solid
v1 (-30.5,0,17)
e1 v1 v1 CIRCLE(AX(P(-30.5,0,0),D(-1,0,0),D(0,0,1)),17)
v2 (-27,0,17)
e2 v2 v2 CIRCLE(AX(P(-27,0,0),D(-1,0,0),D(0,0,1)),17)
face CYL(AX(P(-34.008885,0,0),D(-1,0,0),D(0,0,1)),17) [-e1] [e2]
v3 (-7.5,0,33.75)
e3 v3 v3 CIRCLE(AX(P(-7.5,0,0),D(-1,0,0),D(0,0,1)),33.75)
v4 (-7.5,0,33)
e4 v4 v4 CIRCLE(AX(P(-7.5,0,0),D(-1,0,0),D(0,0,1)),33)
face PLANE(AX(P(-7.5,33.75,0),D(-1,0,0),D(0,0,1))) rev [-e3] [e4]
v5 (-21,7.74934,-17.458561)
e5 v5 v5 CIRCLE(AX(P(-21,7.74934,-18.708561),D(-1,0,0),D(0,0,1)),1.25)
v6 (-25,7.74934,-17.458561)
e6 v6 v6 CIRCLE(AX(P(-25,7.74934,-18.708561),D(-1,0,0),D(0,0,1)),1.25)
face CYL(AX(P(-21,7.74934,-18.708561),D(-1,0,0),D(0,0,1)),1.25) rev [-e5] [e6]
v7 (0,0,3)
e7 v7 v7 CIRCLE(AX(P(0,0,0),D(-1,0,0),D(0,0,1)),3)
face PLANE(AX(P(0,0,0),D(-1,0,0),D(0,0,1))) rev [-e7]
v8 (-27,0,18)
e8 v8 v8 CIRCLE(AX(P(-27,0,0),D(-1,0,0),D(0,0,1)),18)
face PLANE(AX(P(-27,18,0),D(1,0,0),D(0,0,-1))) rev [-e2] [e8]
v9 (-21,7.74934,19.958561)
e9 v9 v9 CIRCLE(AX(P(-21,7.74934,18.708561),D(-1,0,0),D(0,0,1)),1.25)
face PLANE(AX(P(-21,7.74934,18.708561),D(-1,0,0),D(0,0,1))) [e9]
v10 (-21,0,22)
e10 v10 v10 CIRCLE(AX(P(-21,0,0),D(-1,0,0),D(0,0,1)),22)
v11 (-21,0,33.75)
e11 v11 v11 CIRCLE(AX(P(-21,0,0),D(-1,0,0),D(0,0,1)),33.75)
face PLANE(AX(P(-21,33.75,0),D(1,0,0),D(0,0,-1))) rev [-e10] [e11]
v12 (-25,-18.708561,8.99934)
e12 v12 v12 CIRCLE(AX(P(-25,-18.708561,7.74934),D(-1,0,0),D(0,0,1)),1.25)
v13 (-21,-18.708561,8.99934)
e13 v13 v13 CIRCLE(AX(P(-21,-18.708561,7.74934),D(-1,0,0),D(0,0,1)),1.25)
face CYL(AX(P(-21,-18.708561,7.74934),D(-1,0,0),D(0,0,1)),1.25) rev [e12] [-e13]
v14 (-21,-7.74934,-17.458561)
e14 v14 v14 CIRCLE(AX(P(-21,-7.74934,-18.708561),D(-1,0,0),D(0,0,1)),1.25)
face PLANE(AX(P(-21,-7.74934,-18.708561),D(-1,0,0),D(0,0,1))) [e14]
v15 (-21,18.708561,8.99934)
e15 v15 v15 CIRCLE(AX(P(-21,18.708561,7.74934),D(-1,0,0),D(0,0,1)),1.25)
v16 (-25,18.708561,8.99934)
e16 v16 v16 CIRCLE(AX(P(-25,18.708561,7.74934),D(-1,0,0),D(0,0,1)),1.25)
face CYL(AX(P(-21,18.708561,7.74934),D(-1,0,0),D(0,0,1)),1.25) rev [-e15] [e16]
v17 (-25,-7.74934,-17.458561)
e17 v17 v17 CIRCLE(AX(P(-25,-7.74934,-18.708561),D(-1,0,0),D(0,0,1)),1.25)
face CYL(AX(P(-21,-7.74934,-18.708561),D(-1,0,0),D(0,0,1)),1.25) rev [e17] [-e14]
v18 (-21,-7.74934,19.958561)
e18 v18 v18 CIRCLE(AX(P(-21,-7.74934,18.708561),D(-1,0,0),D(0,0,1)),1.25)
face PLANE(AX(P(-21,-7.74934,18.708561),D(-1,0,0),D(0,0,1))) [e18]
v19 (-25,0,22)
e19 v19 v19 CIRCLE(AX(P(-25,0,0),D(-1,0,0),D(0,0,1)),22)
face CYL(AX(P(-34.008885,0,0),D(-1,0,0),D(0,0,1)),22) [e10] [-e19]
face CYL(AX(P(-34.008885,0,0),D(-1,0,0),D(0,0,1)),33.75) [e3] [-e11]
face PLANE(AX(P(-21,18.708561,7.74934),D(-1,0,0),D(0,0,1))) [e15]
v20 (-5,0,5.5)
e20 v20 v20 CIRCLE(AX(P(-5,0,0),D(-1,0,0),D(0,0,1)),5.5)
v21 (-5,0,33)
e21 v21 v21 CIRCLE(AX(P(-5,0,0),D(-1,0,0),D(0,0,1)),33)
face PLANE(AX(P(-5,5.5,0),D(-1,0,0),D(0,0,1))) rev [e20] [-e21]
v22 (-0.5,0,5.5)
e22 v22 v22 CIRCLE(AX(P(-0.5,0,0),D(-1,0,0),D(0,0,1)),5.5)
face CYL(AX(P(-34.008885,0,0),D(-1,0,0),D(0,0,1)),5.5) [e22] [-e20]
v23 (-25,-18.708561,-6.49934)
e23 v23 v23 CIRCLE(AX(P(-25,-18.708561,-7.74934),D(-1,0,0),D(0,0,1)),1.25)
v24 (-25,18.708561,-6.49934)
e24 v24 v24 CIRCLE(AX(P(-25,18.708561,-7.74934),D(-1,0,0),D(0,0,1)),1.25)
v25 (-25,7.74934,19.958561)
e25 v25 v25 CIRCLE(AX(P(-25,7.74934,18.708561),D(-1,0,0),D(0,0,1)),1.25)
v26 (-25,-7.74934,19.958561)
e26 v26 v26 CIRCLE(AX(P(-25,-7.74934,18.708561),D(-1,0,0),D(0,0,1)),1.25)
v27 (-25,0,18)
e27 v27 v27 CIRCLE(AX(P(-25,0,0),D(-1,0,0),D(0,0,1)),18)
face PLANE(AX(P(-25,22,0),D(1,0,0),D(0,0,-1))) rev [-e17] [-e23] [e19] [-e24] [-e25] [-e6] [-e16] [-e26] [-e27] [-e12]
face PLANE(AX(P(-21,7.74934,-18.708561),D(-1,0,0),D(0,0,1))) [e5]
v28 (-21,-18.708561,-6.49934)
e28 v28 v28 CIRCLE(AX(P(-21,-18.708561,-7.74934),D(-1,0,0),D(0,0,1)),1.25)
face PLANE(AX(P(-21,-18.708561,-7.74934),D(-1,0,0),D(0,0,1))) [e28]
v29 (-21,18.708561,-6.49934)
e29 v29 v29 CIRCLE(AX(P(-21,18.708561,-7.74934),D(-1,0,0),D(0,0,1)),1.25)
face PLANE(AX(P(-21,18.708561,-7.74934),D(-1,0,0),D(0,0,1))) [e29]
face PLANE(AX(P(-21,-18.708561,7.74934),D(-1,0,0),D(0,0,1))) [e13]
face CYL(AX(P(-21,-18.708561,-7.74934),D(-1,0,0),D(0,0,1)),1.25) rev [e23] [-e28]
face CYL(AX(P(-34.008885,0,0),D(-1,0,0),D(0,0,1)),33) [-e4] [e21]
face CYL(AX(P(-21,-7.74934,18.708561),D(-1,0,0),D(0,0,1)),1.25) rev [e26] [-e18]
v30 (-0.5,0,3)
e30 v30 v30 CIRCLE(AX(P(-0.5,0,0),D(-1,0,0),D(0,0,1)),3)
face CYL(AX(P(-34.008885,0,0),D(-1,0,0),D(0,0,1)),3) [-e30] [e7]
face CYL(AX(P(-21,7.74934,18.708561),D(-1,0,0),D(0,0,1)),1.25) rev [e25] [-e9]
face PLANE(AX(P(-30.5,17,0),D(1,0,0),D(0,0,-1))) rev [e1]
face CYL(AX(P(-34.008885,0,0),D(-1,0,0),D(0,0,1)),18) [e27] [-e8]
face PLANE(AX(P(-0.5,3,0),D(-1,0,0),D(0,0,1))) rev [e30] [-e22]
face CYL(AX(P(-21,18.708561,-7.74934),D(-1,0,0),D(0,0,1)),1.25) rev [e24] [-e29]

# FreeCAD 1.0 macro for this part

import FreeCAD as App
import Part
import Sketcher

V = App.Vector

doc = App.newDocument("Part")
body = doc.addObject("PartDesign::Body", "Body")

# Sketch on XY plane
sketch1 = body.newObject("Sketcher::SketchObject", "Sketch")
sketch1.AttachmentSupport = (doc.getObject("XY_Plane"), [""])
sketch1.MapMode = "FlatFace"
sketch1.addGeometry([
    Part.LineSegment(V(0, 0, 0), V(0, 3, 0)),  # 0
    Part.LineSegment(V(0, 3, 0), V(-0.5, 3, 0)),  # 1
    Part.LineSegment(V(-0.5, 3, 0), V(-0.5, 5.5, 0)),  # 2
    Part.LineSegment(V(-0.5, 5.5, 0), V(-5, 5.5, 0)),  # 3
    Part.LineSegment(V(-5, 5.5, 0), V(-5, 33, 0)),  # 4
    Part.LineSegment(V(-5, 33, 0), V(-7.5, 33, 0)),  # 5
    Part.LineSegment(V(-7.5, 33, 0), V(-7.5, 33.8, 0)),  # 6
    Part.LineSegment(V(-7.5, 33.8, 0), V(-21, 33.8, 0)),  # 7
    Part.LineSegment(V(-21, 33.8, 0), V(-21, 22, 0)),  # 8
    Part.LineSegment(V(-21, 22, 0), V(-25, 22, 0)),  # 9
    Part.LineSegment(V(-25, 22, 0), V(-25, 18, 0)),  # 10
    Part.LineSegment(V(-25, 18, 0), V(-27, 18, 0)),  # 11
    Part.LineSegment(V(-27, 18, 0), V(-27, 17, 0)),  # 12
    Part.LineSegment(V(-27, 17, 0), V(-30.5, 17, 0)),  # 13
    Part.LineSegment(V(-30.5, 17, 0), V(-30.5, 0, 0)),  # 14
    Part.LineSegment(V(-30.5, 0, 0), V(0, 0, 0)),  # 15
], False)
sketch1.addConstraint([
    Sketcher.Constraint("Coincident", 0, 2, 1, 1),
    Sketcher.Constraint("Coincident", 1, 2, 2, 1),
    Sketcher.Constraint("Coincident", 2, 2, 3, 1),
    Sketcher.Constraint("Coincident", 3, 2, 4, 1),
    Sketcher.Constraint("Coincident", 4, 2, 5, 1),
    Sketcher.Constraint("Coincident", 5, 2, 6, 1),
    Sketcher.Constraint("Coincident", 6, 2, 7, 1),
    Sketcher.Constraint("Coincident", 7, 2, 8, 1),
    Sketcher.Constraint("Coincident", 8, 2, 9, 1),
    Sketcher.Constraint("Coincident", 9, 2, 10, 1),
    Sketcher.Constraint("Coincident", 10, 2, 11, 1),
    Sketcher.Constraint("Coincident", 11, 2, 12, 1),
    Sketcher.Constraint("Coincident", 12, 2, 13, 1),
    Sketcher.Constraint("Coincident", 13, 2, 14, 1),
    Sketcher.Constraint("Coincident", 14, 2, 15, 1),
    Sketcher.Constraint("Coincident", 15, 2, 0, 1),
    Sketcher.Constraint("Vertical", 0),
    Sketcher.Constraint("Horizontal", 1),
    Sketcher.Constraint("Vertical", 2),
    Sketcher.Constraint("Horizontal", 3),
    Sketcher.Constraint("Vertical", 4),
    Sketcher.Constraint("Horizontal", 5),
    Sketcher.Constraint("Vertical", 6),
    Sketcher.Constraint("Horizontal", 7),
    Sketcher.Constraint("Vertical", 8),
    Sketcher.Constraint("Horizontal", 9),
    Sketcher.Constraint("Vertical", 10),
    Sketcher.Constraint("Horizontal", 11),
    Sketcher.Constraint("Vertical", 12),
    Sketcher.Constraint("Horizontal", 13),
    Sketcher.Constraint("Vertical", 14),
    Sketcher.Constraint("Horizontal", 15),
    Sketcher.Constraint("Coincident", 15, 2, -1, 1),
    Sketcher.Constraint("Equal", 5, 2),
    Sketcher.Constraint("Equal", 9, 10),
    Sketcher.Constraint("DistanceX", 9, 2, 9, 1, 4.0),
    Sketcher.Constraint("DistanceX", 11, 2, 11, 1, 2.0),
    Sketcher.Constraint("DistanceY", 0, 1, 0, 2, 3.0),
    Sketcher.Constraint("DistanceY", 12, 2, 12, 1, 1.0),
    Sketcher.Constraint("DistanceY", 14, 2, 14, 1, 17.0),
    Sketcher.Constraint("DistanceX", 1, 2, 1, 1, 0.5),
    Sketcher.Constraint("DistanceX", 3, 2, 3, 1, 4.5),
    Sketcher.Constraint("DistanceX", 5, 2, 5, 1, 2.5),
    Sketcher.Constraint("DistanceX", 7, 2, 7, 1, 13.5),
    Sketcher.Constraint("DistanceX", 13, 2, 13, 1, 3.5),
    Sketcher.Constraint("DistanceY", 4, 1, 4, 2, 27.5),
    Sketcher.Constraint("DistanceY", 6, 1, 6, 2, 0.75),
])
revolution = body.newObject("PartDesign::Revolution", "Revolution")
revolution.Profile = sketch1
revolution.ReferenceAxis = (sketch1, ["H_Axis"])
revolution.Angle = 360

# Sketch on YZ plane
sketch2 = body.newObject("Sketcher::SketchObject", "Sketch001")
sketch2.AttachmentSupport = (doc.getObject("YZ_Plane"), [""])
sketch2.MapMode = "FlatFace"
sketch2.AttachmentOffset = App.Placement(V(0, 0, -25), App.Rotation())
sketch2.addGeometry([
    Part.Circle(V(18.7, -7.7, 0), V(0, 0, 1), 1.2),  # 0
    Part.Circle(V(18.7, 7.7, 0), V(0, 0, 1), 1.2),  # 1
    Part.Circle(V(7.7, 18.7, 0), V(0, 0, 1), 1.2),  # 2
    Part.Circle(V(-7.7, 18.7, 0), V(0, 0, 1), 1.2),  # 3
    Part.Circle(V(-18.7, 7.7, 0), V(0, 0, 1), 1.2),  # 4
    Part.Circle(V(-18.7, -7.7, 0), V(0, 0, 1), 1.2),  # 5
    Part.Circle(V(-7.7, -18.7, 0), V(0, 0, 1), 1.2),  # 6
    Part.Circle(V(7.7, -18.7, 0), V(0, 0, 1), 1.2),  # 7
], False)
sketch2.addConstraint([
    Sketcher.Constraint("Equal", 0, 1),
    Sketcher.Constraint("Equal", 1, 2),
    Sketcher.Constraint("Equal", 2, 3),
    Sketcher.Constraint("Equal", 3, 4),
    Sketcher.Constraint("Equal", 4, 5),
    Sketcher.Constraint("Equal", 5, 6),
    Sketcher.Constraint("Equal", 6, 7),
    Sketcher.Constraint("Symmetric", 0, 3, 4, 3, -1, 1),
    Sketcher.Constraint("Symmetric", 1, 3, 5, 3, -1, 1),
    Sketcher.Constraint("Symmetric", 2, 3, 6, 3, -1, 1),
    Sketcher.Constraint("Symmetric", 3, 3, 7, 3, -1, 1),
    Sketcher.Constraint("Symmetric", 2, 3, 3, 3, -2),
    Sketcher.Constraint("Symmetric", 1, 3, 4, 3, -2),
    Sketcher.Constraint("Diameter", 0, 2.5),
    Sketcher.Constraint("DistanceY", 0, 3, 2, 3, 26.4579),
    Sketcher.Constraint("DistanceX", 3, 3, 1, 3, 26.4579),
    Sketcher.Constraint("DistanceX", -1, 1, 0, 3, 18.708561),
    Sketcher.Constraint("DistanceY", 0, 3, -1, 1, 7.74934),
])
pocket1 = body.newObject("PartDesign::Pocket", "Pocket")
pocket1.Profile = sketch2
pocket1.Length = 4
pocket1.Reversed = True

doc.recompute()
